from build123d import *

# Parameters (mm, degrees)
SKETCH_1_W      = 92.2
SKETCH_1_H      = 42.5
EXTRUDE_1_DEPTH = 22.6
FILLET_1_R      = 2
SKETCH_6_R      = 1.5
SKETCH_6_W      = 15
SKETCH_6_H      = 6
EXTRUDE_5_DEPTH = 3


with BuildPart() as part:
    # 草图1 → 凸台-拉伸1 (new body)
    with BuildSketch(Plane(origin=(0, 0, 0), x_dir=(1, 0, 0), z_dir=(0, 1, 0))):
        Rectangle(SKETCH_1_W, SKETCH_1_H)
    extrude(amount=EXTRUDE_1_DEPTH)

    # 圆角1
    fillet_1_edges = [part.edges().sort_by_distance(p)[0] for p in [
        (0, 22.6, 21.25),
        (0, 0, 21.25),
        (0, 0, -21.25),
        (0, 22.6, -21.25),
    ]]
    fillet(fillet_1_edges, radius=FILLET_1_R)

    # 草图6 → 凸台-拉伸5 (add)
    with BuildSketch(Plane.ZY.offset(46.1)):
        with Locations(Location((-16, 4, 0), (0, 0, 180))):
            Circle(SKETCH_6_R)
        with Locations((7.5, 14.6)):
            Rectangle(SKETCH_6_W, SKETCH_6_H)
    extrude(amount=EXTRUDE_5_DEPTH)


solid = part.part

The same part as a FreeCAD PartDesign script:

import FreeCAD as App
import Part
import Sketcher
Q = App.Units.Quantity


def edges_at(feature, points):
    """Names of the edges that pass closest to the given points."""
    edges = feature.Shape.Edges
    near = lambda p: min(range(len(edges)), key=lambda i: edges[i].distToShape(Part.Vertex(*p))[0])
    return sorted({f"Edge{near(p) + 1}" for p in points})


def add_polygon(sketch, points):
    """Adds a closed chain of lines whose ends are joined by coincident constraints."""
    first, n = sketch.GeometryCount, len(points)
    for a, b in zip(points, points[1:] + points[:1]):
        sketch.addGeometry(Part.LineSegment(App.Vector(*a, 0), App.Vector(*b, 0)), False)
    for i in range(n):
        sketch.addConstraint(Sketcher.Constraint("Coincident", first + i, 2, first + (i + 1) % n, 1))

doc = App.newDocument("Part")
body = doc.addObject("PartDesign::Body", "Body")

sketch1 = body.newObject("Sketcher::SketchObject", "Sketch")
sketch1.AttachmentSupport = (doc.getObject("XZ_Plane"), [""])
sketch1.MapMode = "FlatFace"
add_polygon(sketch1, [(-46, -21), (-46, 21), (46, 21), (46, -21)])
sketch1.addConstraint([
    Sketcher.Constraint("Vertical", 0),
    Sketcher.Constraint("Horizontal", 1),
    Sketcher.Constraint("Vertical", 2),
    Sketcher.Constraint("Horizontal", 3),
    Sketcher.Constraint("Symmetric", 0, 2, 2, 2, -1, 1),
    Sketcher.Constraint("DistanceX", 1, 1, 1, 2, Q("92.2 mm")),
    Sketcher.Constraint("DistanceY", 0, 1, 0, 2, Q("42.5 mm")),
])
pad1 = body.newObject("PartDesign::Pad", "Pad")
pad1.Profile = sketch1
pad1.Length = 22.6
pad1.Reversed = True
doc.recompute()

fillet = body.newObject("PartDesign::Fillet", "Fillet")
fillet.Base = (pad1, edges_at(pad1, [
    (0, 22.6, 21.25),
    (0, 0, 21.25),
    (0, 0, -21.25),
    (0, 22.6, -21.25),
]))
fillet.Radius = 2

sketch2 = body.newObject("Sketcher::SketchObject", "Sketch001")
sketch2.AttachmentSupport = (doc.getObject("YZ_Plane"), [""])
sketch2.MapMode = "FlatFace"
sketch2.AttachmentOffset = App.Placement(App.Vector(0, 0, -46.1), App.Rotation())
sketch2.addGeometry(Part.Circle(App.Vector(4, -16, 0), App.Vector(0, 0, 1), 1.5), False)
add_polygon(sketch2, [(17.6, 0), (11.6, 0), (11.6, 15), (17.6, 15)])
sketch2.addConstraint([
    Sketcher.Constraint("Horizontal", 1),
    Sketcher.Constraint("Vertical", 2),
    Sketcher.Constraint("Horizontal", 3),
    Sketcher.Constraint("Vertical", 4),
    Sketcher.Constraint("PointOnObject", 1, 2, -1),
    Sketcher.Constraint("Diameter", 0, Q("3 mm")),
    Sketcher.Constraint("DistanceX", 1, 2, 1, 1, Q("6 mm")),
    Sketcher.Constraint("DistanceY", 2, 1, 2, 2, Q("15 mm")),
    Sketcher.Constraint("DistanceX", -1, 1, 0, 3, Q("4 mm")),
    Sketcher.Constraint("DistanceY", 0, 3, -1, 1, Q("16 mm")),
    Sketcher.Constraint("DistanceX", -1, 1, 1, 2, Q("11.6 mm")),
])
pad2 = body.newObject("PartDesign::Pad", "Pad001")
pad2.Profile = sketch2
pad2.Length = 3
pad2.Reversed = True

doc.recompute()
